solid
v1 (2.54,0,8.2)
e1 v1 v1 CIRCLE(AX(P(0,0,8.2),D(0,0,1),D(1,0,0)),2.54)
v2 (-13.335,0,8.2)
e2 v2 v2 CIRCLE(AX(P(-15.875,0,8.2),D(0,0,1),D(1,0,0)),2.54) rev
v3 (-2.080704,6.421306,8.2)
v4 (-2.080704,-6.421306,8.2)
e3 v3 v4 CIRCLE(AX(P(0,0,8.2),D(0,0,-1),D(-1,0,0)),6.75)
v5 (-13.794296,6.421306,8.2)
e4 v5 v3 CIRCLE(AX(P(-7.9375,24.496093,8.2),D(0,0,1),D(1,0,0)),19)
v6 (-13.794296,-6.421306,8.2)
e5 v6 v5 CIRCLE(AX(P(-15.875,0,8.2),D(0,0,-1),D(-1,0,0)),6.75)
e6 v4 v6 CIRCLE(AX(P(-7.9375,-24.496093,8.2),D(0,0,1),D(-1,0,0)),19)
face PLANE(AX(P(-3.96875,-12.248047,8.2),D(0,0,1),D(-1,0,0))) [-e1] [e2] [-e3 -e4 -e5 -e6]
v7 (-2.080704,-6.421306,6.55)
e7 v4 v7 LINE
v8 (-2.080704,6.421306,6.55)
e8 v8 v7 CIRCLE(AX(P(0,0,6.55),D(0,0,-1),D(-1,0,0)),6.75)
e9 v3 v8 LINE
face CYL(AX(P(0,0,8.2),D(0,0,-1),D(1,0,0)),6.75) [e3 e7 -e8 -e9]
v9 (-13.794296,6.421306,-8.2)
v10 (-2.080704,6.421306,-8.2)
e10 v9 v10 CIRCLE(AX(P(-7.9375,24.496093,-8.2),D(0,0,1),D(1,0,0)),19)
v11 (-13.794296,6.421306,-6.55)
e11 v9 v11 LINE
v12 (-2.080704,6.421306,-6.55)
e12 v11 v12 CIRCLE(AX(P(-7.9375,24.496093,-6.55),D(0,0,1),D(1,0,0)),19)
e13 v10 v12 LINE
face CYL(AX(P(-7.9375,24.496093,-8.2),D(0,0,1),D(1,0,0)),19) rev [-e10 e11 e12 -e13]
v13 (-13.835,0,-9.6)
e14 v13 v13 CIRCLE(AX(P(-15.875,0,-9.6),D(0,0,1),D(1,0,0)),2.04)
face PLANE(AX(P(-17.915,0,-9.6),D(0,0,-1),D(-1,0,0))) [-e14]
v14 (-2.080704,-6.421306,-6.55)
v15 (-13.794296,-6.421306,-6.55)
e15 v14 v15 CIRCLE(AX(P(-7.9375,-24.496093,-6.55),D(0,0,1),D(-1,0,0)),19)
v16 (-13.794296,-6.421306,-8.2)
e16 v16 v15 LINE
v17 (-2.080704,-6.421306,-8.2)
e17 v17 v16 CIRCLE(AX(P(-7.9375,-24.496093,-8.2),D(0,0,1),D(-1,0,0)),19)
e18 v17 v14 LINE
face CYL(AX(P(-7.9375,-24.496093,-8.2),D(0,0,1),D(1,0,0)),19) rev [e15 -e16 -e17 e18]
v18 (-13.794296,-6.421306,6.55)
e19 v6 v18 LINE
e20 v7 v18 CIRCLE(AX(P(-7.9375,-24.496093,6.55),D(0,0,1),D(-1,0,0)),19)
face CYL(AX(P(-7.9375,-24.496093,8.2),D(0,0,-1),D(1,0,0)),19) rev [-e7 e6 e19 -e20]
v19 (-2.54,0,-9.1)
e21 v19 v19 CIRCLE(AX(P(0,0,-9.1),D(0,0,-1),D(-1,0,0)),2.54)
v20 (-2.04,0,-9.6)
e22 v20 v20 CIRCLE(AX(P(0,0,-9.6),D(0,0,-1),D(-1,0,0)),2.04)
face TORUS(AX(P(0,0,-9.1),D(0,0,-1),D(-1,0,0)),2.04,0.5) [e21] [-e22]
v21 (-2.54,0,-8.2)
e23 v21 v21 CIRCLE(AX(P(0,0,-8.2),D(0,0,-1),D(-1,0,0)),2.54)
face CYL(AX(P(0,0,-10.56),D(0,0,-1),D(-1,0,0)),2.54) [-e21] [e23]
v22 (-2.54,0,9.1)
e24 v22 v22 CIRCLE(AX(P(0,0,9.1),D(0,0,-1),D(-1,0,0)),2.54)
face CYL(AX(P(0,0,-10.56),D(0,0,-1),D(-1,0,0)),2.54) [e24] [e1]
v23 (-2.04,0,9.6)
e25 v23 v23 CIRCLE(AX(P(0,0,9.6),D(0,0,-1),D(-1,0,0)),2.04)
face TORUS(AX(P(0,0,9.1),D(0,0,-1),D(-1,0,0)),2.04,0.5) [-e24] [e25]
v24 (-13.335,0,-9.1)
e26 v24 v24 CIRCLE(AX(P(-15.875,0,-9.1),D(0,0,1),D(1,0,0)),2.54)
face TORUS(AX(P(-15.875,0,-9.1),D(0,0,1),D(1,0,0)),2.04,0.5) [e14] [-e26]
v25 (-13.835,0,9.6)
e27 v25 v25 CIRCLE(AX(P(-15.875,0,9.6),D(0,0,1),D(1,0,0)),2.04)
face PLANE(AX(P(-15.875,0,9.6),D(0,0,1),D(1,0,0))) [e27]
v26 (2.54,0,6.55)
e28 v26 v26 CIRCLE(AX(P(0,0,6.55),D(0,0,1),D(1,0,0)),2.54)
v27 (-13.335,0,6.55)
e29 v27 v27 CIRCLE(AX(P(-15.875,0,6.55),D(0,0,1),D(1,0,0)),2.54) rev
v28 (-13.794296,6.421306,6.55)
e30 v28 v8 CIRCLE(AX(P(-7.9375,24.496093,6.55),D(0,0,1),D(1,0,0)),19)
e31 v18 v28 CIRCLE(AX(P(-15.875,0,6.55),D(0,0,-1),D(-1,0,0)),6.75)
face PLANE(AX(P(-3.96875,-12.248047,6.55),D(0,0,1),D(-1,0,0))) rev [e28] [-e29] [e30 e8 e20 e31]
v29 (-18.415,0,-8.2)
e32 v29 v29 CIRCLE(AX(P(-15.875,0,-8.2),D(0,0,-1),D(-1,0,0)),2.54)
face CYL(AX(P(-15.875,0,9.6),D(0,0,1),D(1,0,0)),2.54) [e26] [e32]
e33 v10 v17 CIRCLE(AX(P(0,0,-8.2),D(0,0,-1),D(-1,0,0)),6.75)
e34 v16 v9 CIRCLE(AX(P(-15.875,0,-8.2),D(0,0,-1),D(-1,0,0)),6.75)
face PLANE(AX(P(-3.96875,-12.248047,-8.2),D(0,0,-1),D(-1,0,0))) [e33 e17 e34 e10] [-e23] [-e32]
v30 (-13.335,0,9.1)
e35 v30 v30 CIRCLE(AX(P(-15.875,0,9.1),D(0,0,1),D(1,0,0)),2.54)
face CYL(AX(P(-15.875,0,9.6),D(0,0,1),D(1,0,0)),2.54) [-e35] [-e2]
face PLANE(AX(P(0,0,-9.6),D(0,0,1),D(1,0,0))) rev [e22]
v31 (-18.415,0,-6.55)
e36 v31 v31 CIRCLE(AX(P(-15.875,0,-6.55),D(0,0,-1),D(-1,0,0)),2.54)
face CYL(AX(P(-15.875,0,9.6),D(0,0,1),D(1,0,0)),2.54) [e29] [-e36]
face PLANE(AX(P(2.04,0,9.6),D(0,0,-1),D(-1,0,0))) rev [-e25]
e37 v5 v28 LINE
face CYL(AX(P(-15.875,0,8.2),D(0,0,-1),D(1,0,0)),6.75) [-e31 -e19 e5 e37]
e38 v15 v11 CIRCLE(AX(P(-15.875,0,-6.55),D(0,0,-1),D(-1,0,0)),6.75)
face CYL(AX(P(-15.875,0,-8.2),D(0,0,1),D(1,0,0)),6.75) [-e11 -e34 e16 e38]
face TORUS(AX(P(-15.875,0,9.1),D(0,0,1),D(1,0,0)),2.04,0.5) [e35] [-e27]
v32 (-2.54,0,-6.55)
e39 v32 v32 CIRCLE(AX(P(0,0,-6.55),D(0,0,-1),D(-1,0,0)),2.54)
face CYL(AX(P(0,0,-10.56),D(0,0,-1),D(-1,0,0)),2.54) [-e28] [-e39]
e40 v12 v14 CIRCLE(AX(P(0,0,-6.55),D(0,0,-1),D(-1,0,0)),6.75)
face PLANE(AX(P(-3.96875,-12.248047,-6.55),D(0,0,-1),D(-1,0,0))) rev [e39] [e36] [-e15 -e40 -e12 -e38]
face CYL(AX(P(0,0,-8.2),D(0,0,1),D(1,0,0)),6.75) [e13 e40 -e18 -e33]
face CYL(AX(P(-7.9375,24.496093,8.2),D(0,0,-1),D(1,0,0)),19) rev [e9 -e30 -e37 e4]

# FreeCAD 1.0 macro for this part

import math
import FreeCAD as App
import Part
import Sketcher
from FreeCAD import Vector

doc = App.newDocument("Part")
body = doc.addObject("PartDesign::Body", "Body")

sketch1 = body.newObject("Sketcher::SketchObject", "Sketch")
sketch1.AttachmentSupport = (doc.getObject("XZ_Plane"), [""])
sketch1.MapMode = "FlatFace"
sketch1.addGeometry([
    Part.LineSegment(Vector(0, -9.6, 0), Vector(0, 9.6, 0)),
    Part.LineSegment(Vector(0, 9.6, 0), Vector(2.04, 9.6, 0)),
    Part.ArcOfCircle(Part.Circle(Vector(2.04, 9.1, 0), Vector(0, 0, 1), 0.5), math.radians(0), math.radians(90)),
    Part.LineSegment(Vector(2.54, 9.1, 0), Vector(2.54, -9.1, 0)),
    Part.ArcOfCircle(Part.Circle(Vector(2.04, -9.1, 0), Vector(0, 0, 1), 0.5), math.radians(-90), math.radians(0)),
    Part.LineSegment(Vector(2.04, -9.6, 0), Vector(0, -9.6, 0)),
], False)
sketch1.addConstraint([
    Sketcher.Constraint("Coincident", 0, 2, 1, 1),
    Sketcher.Constraint("Tangent", 1, 2, 2, 2),
    Sketcher.Constraint("Tangent", 2, 1, 3, 1),
    Sketcher.Constraint("Tangent", 3, 2, 4, 2),
    Sketcher.Constraint("Tangent", 4, 1, 5, 1),
    Sketcher.Constraint("Coincident", 5, 2, 0, 1),
    Sketcher.Constraint("Vertical", 0),
    Sketcher.Constraint("Horizontal", 1),
    Sketcher.Constraint("Vertical", 3),
    Sketcher.Constraint("Horizontal", 5),
    Sketcher.Constraint("Equal", 2, 4),
    Sketcher.Constraint("Symmetric", 0, 2, 5, 2, -1, 1),
    Sketcher.Constraint("Radius", 2, 0.5),
    Sketcher.Constraint("DistanceY", 0, 1, 0, 2, 19.2),
    Sketcher.Constraint("DistanceX", 1, 1, 1, 2, 2.04),
])
revolution = body.newObject("PartDesign::Revolution", "Revolution")
revolution.Profile = sketch1
revolution.ReferenceAxis = (sketch1, ["V_Axis"])
revolution.Angle = 360
body2 = doc.addObject("PartDesign::Body", "Body001")

sketch2 = body2.newObject("Sketcher::SketchObject", "Sketch001")
sketch2.AttachmentSupport = (doc.getObject("XZ_Plane001"), [""])
sketch2.MapMode = "FlatFace"
sketch2.addGeometry([
    Part.LineSegment(Vector(-15.88, 9.6, 0), Vector(-17.91, 9.6, 0)),
    Part.ArcOfCircle(Part.Circle(Vector(-17.92, 9.1, 0), Vector(0, 0, 1), 0.5), math.radians(90), math.radians(180)),
    Part.LineSegment(Vector(-18.41, 9.1, 0), Vector(-18.41, -9.1, 0)),
    Part.ArcOfCircle(Part.Circle(Vector(-17.92, -9.1, 0), Vector(0, 0, 1), 0.5), math.radians(180), math.radians(270)),
    Part.LineSegment(Vector(-17.91, -9.6, 0), Vector(-15.88, -9.6, 0)),
    Part.LineSegment(Vector(-15.88, -9.6, 0), Vector(-15.88, 9.6, 0)),
], False)
sketch2.addGeometry(Part.LineSegment(Vector(-15.88, 9.6, 0), Vector(-15.88, -9.6, 0)), True)
sketch2.addConstraint([
    Sketcher.Constraint("Tangent", 0, 2, 1, 1),
    Sketcher.Constraint("Tangent", 1, 2, 2, 1),
    Sketcher.Constraint("Tangent", 2, 2, 3, 1),
    Sketcher.Constraint("Tangent", 3, 2, 4, 1),
    Sketcher.Constraint("Coincident", 4, 2, 5, 1),
    Sketcher.Constraint("Coincident", 5, 2, 0, 1),
    Sketcher.Constraint("Horizontal", 0),
    Sketcher.Constraint("Vertical", 2),
    Sketcher.Constraint("Horizontal", 4),
    Sketcher.Constraint("Vertical", 5),
    Sketcher.Constraint("Vertical", 6),
    Sketcher.Constraint("Coincident", 6, 1, 5, 2),
    Sketcher.Constraint("Equal", 1, 3),
    Sketcher.Constraint("Horizontal", 3, 2, 6, 2),
    Sketcher.Constraint("Radius", 1, 0.5),
    Sketcher.Constraint("DistanceY", 2, 2, 2, 1, 18.2),
    Sketcher.Constraint("DistanceX", 0, 2, 0, 1, 2.04),
    Sketcher.Constraint("DistanceY", -1, 1, 1, 3, 9.1),
    Sketcher.Constraint("DistanceX", 1, 3, -1, 1, 17.915),
])
revolution2 = body2.newObject("PartDesign::Revolution", "Revolution001")
revolution2.Profile = sketch2
revolution2.ReferenceAxis = (sketch2, ["Axis0"])
revolution2.Angle = 360
body.AllowCompound = True
doc.recompute()

boolean = body.newObject("PartDesign::Boolean", "Boolean")
boolean.Type = "Fuse"
boolean.addObjects([body2])

sketch3 = body.newObject("Sketcher::SketchObject", "Sketch002")
sketch3.AttachmentSupport = (doc.getObject("XY_Plane"), [""])
sketch3.MapMode = "FlatFace"
sketch3.AttachmentOffset = App.Placement(Vector(0, 0, -6.55), App.Rotation())
sketch3.addGeometry([
    Part.ArcOfCircle(Part.Circle(Vector(0, 0, 0), Vector(0, 0, 1), 6.8), math.radians(-108), math.radians(108)),
    Part.ArcOfCircle(Part.Circle(Vector(-7.9, -24.5, 0), Vector(0, 0, 1), 19), math.radians(72), math.radians(108)),
    Part.ArcOfCircle(Part.Circle(Vector(-15.9, 0, 0), Vector(0, 0, 1), 6.8), math.radians(72), math.radians(288)),
    Part.ArcOfCircle(Part.Circle(Vector(-7.9, 24.5, 0), Vector(0, 0, 1), 19), math.radians(-108), math.radians(-72)),
    Part.Circle(Vector(0, 0, 0), Vector(0, 0, 1), 2.5),
    Part.Circle(Vector(-15.9, 0, 0), Vector(0, 0, 1), 2.5),
], False)
sketch3.addConstraint([
    Sketcher.Constraint("Tangent", 0, 1, 1, 1),
    Sketcher.Constraint("Tangent", 1, 2, 2, 2),
    Sketcher.Constraint("Tangent", 2, 1, 3, 1),
    Sketcher.Constraint("Tangent", 3, 2, 0, 2),
    Sketcher.Constraint("Coincident", 0, 3, -1, 1),
    Sketcher.Constraint("Coincident", 4, 3, -1, 1),
    Sketcher.Constraint("Coincident", 5, 3, 2, 3),
    Sketcher.Constraint("Equal", 0, 2),
    Sketcher.Constraint("Equal", 1, 3),
    Sketcher.Constraint("Equal", 4, 5),
    Sketcher.Constraint("PointOnObject", 2, 3, -1),
    Sketcher.Constraint("Radius", 1, 19.0),
    Sketcher.Constraint("Diameter", 4, 5.08),
    Sketcher.Constraint("Radius", 0, 6.75),
    Sketcher.Constraint("DistanceX", 2, 3, -1, 1, 15.875),
])
pad1 = body.newObject("PartDesign::Pad", "Pad")
pad1.Profile = sketch3
pad1.Length = 1.65
pad1.Reversed = True
doc.recompute()

mirrored = body.newObject("PartDesign::Mirrored", "Mirrored")
mirrored.Originals = [pad1]
mirrored.MirrorPlane = (doc.getObject("XY_Plane"), [""])
body.Tip = mirrored

doc.recompute()
